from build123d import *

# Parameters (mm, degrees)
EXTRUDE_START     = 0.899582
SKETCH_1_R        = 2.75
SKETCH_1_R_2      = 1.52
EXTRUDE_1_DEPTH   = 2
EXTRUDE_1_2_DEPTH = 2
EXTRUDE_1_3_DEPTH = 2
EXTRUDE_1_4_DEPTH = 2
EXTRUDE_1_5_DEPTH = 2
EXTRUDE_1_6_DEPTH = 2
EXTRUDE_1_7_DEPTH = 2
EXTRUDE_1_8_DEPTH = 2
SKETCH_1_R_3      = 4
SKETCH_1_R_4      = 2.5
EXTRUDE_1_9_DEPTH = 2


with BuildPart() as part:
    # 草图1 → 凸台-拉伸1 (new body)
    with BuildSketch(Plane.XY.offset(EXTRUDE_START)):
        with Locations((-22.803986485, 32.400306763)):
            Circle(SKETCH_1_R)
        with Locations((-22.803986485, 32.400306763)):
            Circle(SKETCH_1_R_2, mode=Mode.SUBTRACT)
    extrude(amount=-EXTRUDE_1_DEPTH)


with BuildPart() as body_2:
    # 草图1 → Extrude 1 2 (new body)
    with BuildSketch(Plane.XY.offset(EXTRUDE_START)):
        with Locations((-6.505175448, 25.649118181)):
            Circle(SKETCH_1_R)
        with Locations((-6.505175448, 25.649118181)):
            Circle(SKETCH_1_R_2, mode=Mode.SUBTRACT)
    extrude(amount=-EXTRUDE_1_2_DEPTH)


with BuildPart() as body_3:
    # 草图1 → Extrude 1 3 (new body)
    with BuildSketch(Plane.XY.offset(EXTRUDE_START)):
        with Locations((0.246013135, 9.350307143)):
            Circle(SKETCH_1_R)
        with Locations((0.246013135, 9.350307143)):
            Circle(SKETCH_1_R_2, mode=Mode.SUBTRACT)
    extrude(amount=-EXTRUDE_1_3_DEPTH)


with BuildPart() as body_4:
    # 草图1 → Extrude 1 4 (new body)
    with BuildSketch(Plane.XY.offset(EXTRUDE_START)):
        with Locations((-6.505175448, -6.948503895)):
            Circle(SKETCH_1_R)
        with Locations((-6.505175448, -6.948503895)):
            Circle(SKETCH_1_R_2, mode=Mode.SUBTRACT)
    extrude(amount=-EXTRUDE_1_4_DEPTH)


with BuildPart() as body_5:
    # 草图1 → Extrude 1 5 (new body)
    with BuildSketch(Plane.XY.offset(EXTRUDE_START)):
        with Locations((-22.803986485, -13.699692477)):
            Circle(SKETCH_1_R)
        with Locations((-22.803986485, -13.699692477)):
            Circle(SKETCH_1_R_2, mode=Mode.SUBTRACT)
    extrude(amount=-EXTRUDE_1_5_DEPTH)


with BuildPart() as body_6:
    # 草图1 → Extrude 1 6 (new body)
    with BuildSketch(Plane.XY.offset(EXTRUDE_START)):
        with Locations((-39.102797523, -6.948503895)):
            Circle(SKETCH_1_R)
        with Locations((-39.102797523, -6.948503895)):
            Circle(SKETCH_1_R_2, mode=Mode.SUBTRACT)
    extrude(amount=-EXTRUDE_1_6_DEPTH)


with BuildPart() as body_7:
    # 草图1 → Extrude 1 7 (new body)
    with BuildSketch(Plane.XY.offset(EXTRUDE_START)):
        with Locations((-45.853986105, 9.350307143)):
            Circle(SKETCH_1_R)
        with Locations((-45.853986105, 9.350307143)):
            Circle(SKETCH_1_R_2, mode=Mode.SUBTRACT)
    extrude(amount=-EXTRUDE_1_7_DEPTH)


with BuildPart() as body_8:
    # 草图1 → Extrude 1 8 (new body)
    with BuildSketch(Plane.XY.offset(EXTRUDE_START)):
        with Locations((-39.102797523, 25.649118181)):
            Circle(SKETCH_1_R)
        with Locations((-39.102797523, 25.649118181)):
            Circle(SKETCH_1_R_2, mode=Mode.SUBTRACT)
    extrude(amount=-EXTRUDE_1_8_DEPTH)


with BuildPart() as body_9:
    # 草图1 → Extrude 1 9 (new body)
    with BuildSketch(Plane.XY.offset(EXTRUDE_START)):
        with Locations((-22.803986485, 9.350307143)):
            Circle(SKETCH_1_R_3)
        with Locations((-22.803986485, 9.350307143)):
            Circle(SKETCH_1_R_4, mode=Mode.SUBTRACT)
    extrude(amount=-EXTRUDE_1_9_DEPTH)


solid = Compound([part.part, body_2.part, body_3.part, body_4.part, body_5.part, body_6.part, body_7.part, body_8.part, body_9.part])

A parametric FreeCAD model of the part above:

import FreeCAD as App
import Part
import Sketcher

doc = App.newDocument("Part")
params = doc.addObject("Spreadsheet::Sheet", "Params")
for row, (alias, value) in enumerate([
    ("sketch1_diameter", "5.5 mm"),
    ("sketch1_diameter2", "3.04 mm"),
    ("pad1_length", "2 mm"),
    ("sketch2_diameter", "5.5 mm"),
    ("sketch2_diameter2", "3.04 mm"),
    ("pad2_length", "2 mm"),
    ("sketch3_diameter", "5.5 mm"),
    ("sketch3_diameter2", "3.04 mm"),
    ("pad3_length", "2 mm"),
    ("sketch4_diameter", "5.5 mm"),
    ("sketch4_diameter2", "3.04 mm"),
    ("pad4_length", "2 mm"),
    ("sketch5_diameter", "5.5 mm"),
    ("sketch5_diameter2", "3.04 mm"),
    ("pad5_length", "2 mm"),
    ("sketch6_diameter", "5.5 mm"),
    ("sketch6_diameter2", "3.04 mm"),
    ("pad6_length", "2 mm"),
    ("sketch7_diameter", "5.5 mm"),
    ("sketch7_diameter2", "3.04 mm"),
    ("pad7_length", "2 mm"),
    ("sketch8_diameter", "5.5 mm"),
    ("sketch8_diameter2", "3.04 mm"),
    ("pad8_length", "2 mm"),
    ("sketch9_diameter", "8 mm"),
    ("sketch9_diameter2", "5 mm"),
    ("pad9_length", "2 mm"),
], start=1):
    params.set(f"A{row}", alias)
    params.set(f"B{row}", "=" + value)
    params.setAlias(f"B{row}", alias)

body = doc.addObject("PartDesign::Body", "Body")

# Sketch on XY plane
sketch1 = doc.addObject("Sketcher::SketchObject", "Sketch")
body.addObject(sketch1)
sketch1.AttachmentSupport = (doc.XY_Plane, [""])
sketch1.MapMode = "FlatFace"
sketch1.AttachmentOffset = App.Placement(App.Vector(0, 0, 0.899582), App.Rotation())
sketch1.addGeometry(Part.Circle(App.Vector(-22.803986, 32.400307, 0), App.Vector(0, 0, 1), 2.75), False)
sketch1.addGeometry(Part.Circle(App.Vector(-22.803986, 32.400307, 0), App.Vector(0, 0, 1), 1.52), False)
sketch1.addConstraint(Sketcher.Constraint("Coincident", 1, 3, 0, 3))
sketch1.addConstraint(Sketcher.Constraint("Diameter", 0, 5.5))
sketch1.addConstraint(Sketcher.Constraint("Diameter", 1, 3.04))
sketch1.addConstraint(Sketcher.Constraint("DistanceX", 0, 3, -1, 1, 22.803986))
sketch1.addConstraint(Sketcher.Constraint("DistanceY", -1, 1, 0, 3, 32.400307))
sketch1.setExpression("Constraints[1]", "Params.sketch1_diameter")
sketch1.setExpression("Constraints[2]", "Params.sketch1_diameter2")
pad1 = doc.addObject("PartDesign::Pad", "Pad")
body.addObject(pad1)
pad1.Profile = sketch1
pad1.setExpression("Length", "Params.pad1_length")
pad1.Reversed = True
body2 = doc.addObject("PartDesign::Body", "Body001")

# Sketch on XY plane
sketch2 = doc.addObject("Sketcher::SketchObject", "Sketch001")
body2.addObject(sketch2)
sketch2.AttachmentSupport = (doc.getObject("XY_Plane001"), [""])
sketch2.MapMode = "FlatFace"
sketch2.AttachmentOffset = App.Placement(App.Vector(0, 0, 0.899582), App.Rotation())
sketch2.addGeometry(Part.Circle(App.Vector(-6.505175, 25.649118, 0), App.Vector(0, 0, 1), 2.75), False)
sketch2.addGeometry(Part.Circle(App.Vector(-6.505175, 25.649118, 0), App.Vector(0, 0, 1), 1.52), False)
sketch2.addConstraint(Sketcher.Constraint("Coincident", 1, 3, 0, 3))
sketch2.addConstraint(Sketcher.Constraint("Diameter", 0, 5.5))
sketch2.addConstraint(Sketcher.Constraint("Diameter", 1, 3.04))
sketch2.addConstraint(Sketcher.Constraint("DistanceY", -1, 1, 0, 3, 25.649118))
sketch2.addConstraint(Sketcher.Constraint("DistanceX", 0, 3, -1, 1, 6.505175))
sketch2.setExpression("Constraints[1]", "Params.sketch2_diameter")
sketch2.setExpression("Constraints[2]", "Params.sketch2_diameter2")
pad2 = doc.addObject("PartDesign::Pad", "Pad001")
body2.addObject(pad2)
pad2.Profile = sketch2
pad2.setExpression("Length", "Params.pad2_length")
pad2.Reversed = True
body3 = doc.addObject("PartDesign::Body", "Body002")

# Sketch on XY plane
sketch3 = doc.addObject("Sketcher::SketchObject", "Sketch002")
body3.addObject(sketch3)
sketch3.AttachmentSupport = (doc.getObject("XY_Plane002"), [""])
sketch3.MapMode = "FlatFace"
sketch3.AttachmentOffset = App.Placement(App.Vector(0, 0, 0.899582), App.Rotation())
sketch3.addGeometry(Part.Circle(App.Vector(0.246013, 9.350307, 0), App.Vector(0, 0, 1), 2.75), False)
sketch3.addGeometry(Part.Circle(App.Vector(0.246013, 9.350307, 0), App.Vector(0, 0, 1), 1.52), False)
sketch3.addConstraint(Sketcher.Constraint("Coincident", 1, 3, 0, 3))
sketch3.addConstraint(Sketcher.Constraint("Diameter", 0, 5.5))
sketch3.addConstraint(Sketcher.Constraint("Diameter", 1, 3.04))
sketch3.addConstraint(Sketcher.Constraint("DistanceX", -1, 1, 0, 3, 0.246013))
sketch3.addConstraint(Sketcher.Constraint("DistanceY", -1, 1, 0, 3, 9.350307))
sketch3.setExpression("Constraints[1]", "Params.sketch3_diameter")
sketch3.setExpression("Constraints[2]", "Params.sketch3_diameter2")
pad3 = doc.addObject("PartDesign::Pad", "Pad002")
body3.addObject(pad3)
pad3.Profile = sketch3
pad3.setExpression("Length", "Params.pad3_length")
pad3.Reversed = True
body4 = doc.addObject("PartDesign::Body", "Body003")

# Sketch on XY plane
sketch4 = doc.addObject("Sketcher::SketchObject", "Sketch003")
body4.addObject(sketch4)
sketch4.AttachmentSupport = (doc.getObject("XY_Plane003"), [""])
sketch4.MapMode = "FlatFace"
sketch4.AttachmentOffset = App.Placement(App.Vector(0, 0, 0.899582), App.Rotation())
sketch4.addGeometry(Part.Circle(App.Vector(-6.505175, -6.948504, 0), App.Vector(0, 0, 1), 2.75), False)
sketch4.addGeometry(Part.Circle(App.Vector(-6.505175, -6.948504, 0), App.Vector(0, 0, 1), 1.52), False)
sketch4.addConstraint(Sketcher.Constraint("Coincident", 1, 3, 0, 3))
sketch4.addConstraint(Sketcher.Constraint("Diameter", 0, 5.5))
sketch4.addConstraint(Sketcher.Constraint("Diameter", 1, 3.04))
sketch4.addConstraint(Sketcher.Constraint("DistanceX", 0, 3, -1, 1, 6.505175))
sketch4.addConstraint(Sketcher.Constraint("DistanceY", 0, 3, -1, 1, 6.948504))
sketch4.setExpression("Constraints[1]", "Params.sketch4_diameter")
sketch4.setExpression("Constraints[2]", "Params.sketch4_diameter2")
pad4 = doc.addObject("PartDesign::Pad", "Pad003")
body4.addObject(pad4)
pad4.Profile = sketch4
pad4.setExpression("Length", "Params.pad4_length")
pad4.Reversed = True
body5 = doc.addObject("PartDesign::Body", "Body004")

# Sketch on XY plane
sketch5 = doc.addObject("Sketcher::SketchObject", "Sketch004")
body5.addObject(sketch5)
sketch5.AttachmentSupport = (doc.getObject("XY_Plane004"), [""])
sketch5.MapMode = "FlatFace"
sketch5.AttachmentOffset = App.Placement(App.Vector(0, 0, 0.899582), App.Rotation())
sketch5.addGeometry(Part.Circle(App.Vector(-22.803986, -13.699692, 0), App.Vector(0, 0, 1), 2.75), False)
sketch5.addGeometry(Part.Circle(App.Vector(-22.803986, -13.699692, 0), App.Vector(0, 0, 1), 1.52), False)
sketch5.addConstraint(Sketcher.Constraint("Coincident", 1, 3, 0, 3))
sketch5.addConstraint(Sketcher.Constraint("Diameter", 0, 5.5))
sketch5.addConstraint(Sketcher.Constraint("Diameter", 1, 3.04))
sketch5.addConstraint(Sketcher.Constraint("DistanceX", 0, 3, -1, 1, 22.803986))
sketch5.addConstraint(Sketcher.Constraint("DistanceY", 0, 3, -1, 1, 13.699692))
sketch5.setExpression("Constraints[1]", "Params.sketch5_diameter")
sketch5.setExpression("Constraints[2]", "Params.sketch5_diameter2")
pad5 = doc.addObject("PartDesign::Pad", "Pad004")
body5.addObject(pad5)
pad5.Profile = sketch5
pad5.setExpression("Length", "Params.pad5_length")
pad5.Reversed = True
body6 = doc.addObject("PartDesign::Body", "Body005")

# Sketch on XY plane
sketch6 = doc.addObject("Sketcher::SketchObject", "Sketch005")
body6.addObject(sketch6)
sketch6.AttachmentSupport = (doc.getObject("XY_Plane005"), [""])
sketch6.MapMode = "FlatFace"
sketch6.AttachmentOffset = App.Placement(App.Vector(0, 0, 0.899582), App.Rotation())
sketch6.addGeometry(Part.Circle(App.Vector(-39.102798, -6.948504, 0), App.Vector(0, 0, 1), 2.75), False)
sketch6.addGeometry(Part.Circle(App.Vector(-39.102798, -6.948504, 0), App.Vector(0, 0, 1), 1.52), False)
sketch6.addConstraint(Sketcher.Constraint("Coincident", 1, 3, 0, 3))
sketch6.addConstraint(Sketcher.Constraint("Diameter", 0, 5.5))
sketch6.addConstraint(Sketcher.Constraint("Diameter", 1, 3.04))
sketch6.addConstraint(Sketcher.Constraint("DistanceX", 0, 3, -1, 1, 39.102798))
sketch6.addConstraint(Sketcher.Constraint("DistanceY", 0, 3, -1, 1, 6.948504))
sketch6.setExpression("Constraints[1]", "Params.sketch6_diameter")
sketch6.setExpression("Constraints[2]", "Params.sketch6_diameter2")
pad6 = doc.addObject("PartDesign::Pad", "Pad005")
body6.addObject(pad6)
pad6.Profile = sketch6
pad6.setExpression("Length", "Params.pad6_length")
pad6.Reversed = True
body7 = doc.addObject("PartDesign::Body", "Body006")

# Sketch on XY plane
sketch7 = doc.addObject("Sketcher::SketchObject", "Sketch006")
body7.addObject(sketch7)
sketch7.AttachmentSupport = (doc.getObject("XY_Plane006"), [""])
sketch7.MapMode = "FlatFace"
sketch7.AttachmentOffset = App.Placement(App.Vector(0, 0, 0.899582), App.Rotation())
sketch7.addGeometry(Part.Circle(App.Vector(-45.853986, 9.350307, 0), App.Vector(0, 0, 1), 2.75), False)
sketch7.addGeometry(Part.Circle(App.Vector(-45.853986, 9.350307, 0), App.Vector(0, 0, 1), 1.52), False)
sketch7.addConstraint(Sketcher.Constraint("Coincident", 1, 3, 0, 3))
sketch7.addConstraint(Sketcher.Constraint("Diameter", 0, 5.5))
sketch7.addConstraint(Sketcher.Constraint("Diameter", 1, 3.04))
sketch7.addConstraint(Sketcher.Constraint("DistanceX", 0, 3, -1, 1, 45.853986))
sketch7.addConstraint(Sketcher.Constraint("DistanceY", -1, 1, 0, 3, 9.350307))
sketch7.setExpression("Constraints[1]", "Params.sketch7_diameter")
sketch7.setExpression("Constraints[2]", "Params.sketch7_diameter2")
pad7 = doc.addObject("PartDesign::Pad", "Pad006")
body7.addObject(pad7)
pad7.Profile = sketch7
pad7.setExpression("Length", "Params.pad7_length")
pad7.Reversed = True
body8 = doc.addObject("PartDesign::Body", "Body007")

# Sketch on XY plane
sketch8 = doc.addObject("Sketcher::SketchObject", "Sketch007")
body8.addObject(sketch8)
sketch8.AttachmentSupport = (doc.getObject("XY_Plane007"), [""])
sketch8.MapMode = "FlatFace"
sketch8.AttachmentOffset = App.Placement(App.Vector(0, 0, 0.899582), App.Rotation())
sketch8.addGeometry(Part.Circle(App.Vector(-39.102798, 25.649118, 0), App.Vector(0, 0, 1), 2.75), False)
sketch8.addGeometry(Part.Circle(App.Vector(-39.102798, 25.649118, 0), App.Vector(0, 0, 1), 1.52), False)
sketch8.addConstraint(Sketcher.Constraint("Coincident", 1, 3, 0, 3))
sketch8.addConstraint(Sketcher.Constraint("Diameter", 0, 5.5))
sketch8.addConstraint(Sketcher.Constraint("Diameter", 1, 3.04))
sketch8.addConstraint(Sketcher.Constraint("DistanceY", -1, 1, 0, 3, 25.649118))
sketch8.addConstraint(Sketcher.Constraint("DistanceX", 0, 3, -1, 1, 39.102798))
sketch8.setExpression("Constraints[1]", "Params.sketch8_diameter")
sketch8.setExpression("Constraints[2]", "Params.sketch8_diameter2")
pad8 = doc.addObject("PartDesign::Pad", "Pad007")
body8.addObject(pad8)
pad8.Profile = sketch8
pad8.setExpression("Length", "Params.pad8_length")
pad8.Reversed = True
body9 = doc.addObject("PartDesign::Body", "Body008")

# Sketch on XY plane
sketch9 = doc.addObject("Sketcher::SketchObject", "Sketch008")
body9.addObject(sketch9)
sketch9.AttachmentSupport = (doc.getObject("XY_Plane008"), [""])
sketch9.MapMode = "FlatFace"
sketch9.AttachmentOffset = App.Placement(App.Vector(0, 0, 0.899582), App.Rotation())
sketch9.addGeometry(Part.Circle(App.Vector(-22.803986, 9.350307, 0), App.Vector(0, 0, 1), 4), False)
sketch9.addGeometry(Part.Circle(App.Vector(-22.803986, 9.350307, 0), App.Vector(0, 0, 1), 2.5), False)
sketch9.addConstraint(Sketcher.Constraint("Coincident", 1, 3, 0, 3))
sketch9.addConstraint(Sketcher.Constraint("Diameter", 0, 8.0))
sketch9.addConstraint(Sketcher.Constraint("Diameter", 1, 5.0))
sketch9.addConstraint(Sketcher.Constraint("DistanceX", 0, 3, -1, 1, 22.803986))
sketch9.addConstraint(Sketcher.Constraint("DistanceY", -1, 1, 0, 3, 9.350307))
sketch9.setExpression("Constraints[1]", "Params.sketch9_diameter")
sketch9.setExpression("Constraints[2]", "Params.sketch9_diameter2")
pad9 = doc.addObject("PartDesign::Pad", "Pad008")
body9.addObject(pad9)
pad9.Profile = sketch9
pad9.setExpression("Length", "Params.pad9_length")
pad9.Reversed = True

doc.recompute()
